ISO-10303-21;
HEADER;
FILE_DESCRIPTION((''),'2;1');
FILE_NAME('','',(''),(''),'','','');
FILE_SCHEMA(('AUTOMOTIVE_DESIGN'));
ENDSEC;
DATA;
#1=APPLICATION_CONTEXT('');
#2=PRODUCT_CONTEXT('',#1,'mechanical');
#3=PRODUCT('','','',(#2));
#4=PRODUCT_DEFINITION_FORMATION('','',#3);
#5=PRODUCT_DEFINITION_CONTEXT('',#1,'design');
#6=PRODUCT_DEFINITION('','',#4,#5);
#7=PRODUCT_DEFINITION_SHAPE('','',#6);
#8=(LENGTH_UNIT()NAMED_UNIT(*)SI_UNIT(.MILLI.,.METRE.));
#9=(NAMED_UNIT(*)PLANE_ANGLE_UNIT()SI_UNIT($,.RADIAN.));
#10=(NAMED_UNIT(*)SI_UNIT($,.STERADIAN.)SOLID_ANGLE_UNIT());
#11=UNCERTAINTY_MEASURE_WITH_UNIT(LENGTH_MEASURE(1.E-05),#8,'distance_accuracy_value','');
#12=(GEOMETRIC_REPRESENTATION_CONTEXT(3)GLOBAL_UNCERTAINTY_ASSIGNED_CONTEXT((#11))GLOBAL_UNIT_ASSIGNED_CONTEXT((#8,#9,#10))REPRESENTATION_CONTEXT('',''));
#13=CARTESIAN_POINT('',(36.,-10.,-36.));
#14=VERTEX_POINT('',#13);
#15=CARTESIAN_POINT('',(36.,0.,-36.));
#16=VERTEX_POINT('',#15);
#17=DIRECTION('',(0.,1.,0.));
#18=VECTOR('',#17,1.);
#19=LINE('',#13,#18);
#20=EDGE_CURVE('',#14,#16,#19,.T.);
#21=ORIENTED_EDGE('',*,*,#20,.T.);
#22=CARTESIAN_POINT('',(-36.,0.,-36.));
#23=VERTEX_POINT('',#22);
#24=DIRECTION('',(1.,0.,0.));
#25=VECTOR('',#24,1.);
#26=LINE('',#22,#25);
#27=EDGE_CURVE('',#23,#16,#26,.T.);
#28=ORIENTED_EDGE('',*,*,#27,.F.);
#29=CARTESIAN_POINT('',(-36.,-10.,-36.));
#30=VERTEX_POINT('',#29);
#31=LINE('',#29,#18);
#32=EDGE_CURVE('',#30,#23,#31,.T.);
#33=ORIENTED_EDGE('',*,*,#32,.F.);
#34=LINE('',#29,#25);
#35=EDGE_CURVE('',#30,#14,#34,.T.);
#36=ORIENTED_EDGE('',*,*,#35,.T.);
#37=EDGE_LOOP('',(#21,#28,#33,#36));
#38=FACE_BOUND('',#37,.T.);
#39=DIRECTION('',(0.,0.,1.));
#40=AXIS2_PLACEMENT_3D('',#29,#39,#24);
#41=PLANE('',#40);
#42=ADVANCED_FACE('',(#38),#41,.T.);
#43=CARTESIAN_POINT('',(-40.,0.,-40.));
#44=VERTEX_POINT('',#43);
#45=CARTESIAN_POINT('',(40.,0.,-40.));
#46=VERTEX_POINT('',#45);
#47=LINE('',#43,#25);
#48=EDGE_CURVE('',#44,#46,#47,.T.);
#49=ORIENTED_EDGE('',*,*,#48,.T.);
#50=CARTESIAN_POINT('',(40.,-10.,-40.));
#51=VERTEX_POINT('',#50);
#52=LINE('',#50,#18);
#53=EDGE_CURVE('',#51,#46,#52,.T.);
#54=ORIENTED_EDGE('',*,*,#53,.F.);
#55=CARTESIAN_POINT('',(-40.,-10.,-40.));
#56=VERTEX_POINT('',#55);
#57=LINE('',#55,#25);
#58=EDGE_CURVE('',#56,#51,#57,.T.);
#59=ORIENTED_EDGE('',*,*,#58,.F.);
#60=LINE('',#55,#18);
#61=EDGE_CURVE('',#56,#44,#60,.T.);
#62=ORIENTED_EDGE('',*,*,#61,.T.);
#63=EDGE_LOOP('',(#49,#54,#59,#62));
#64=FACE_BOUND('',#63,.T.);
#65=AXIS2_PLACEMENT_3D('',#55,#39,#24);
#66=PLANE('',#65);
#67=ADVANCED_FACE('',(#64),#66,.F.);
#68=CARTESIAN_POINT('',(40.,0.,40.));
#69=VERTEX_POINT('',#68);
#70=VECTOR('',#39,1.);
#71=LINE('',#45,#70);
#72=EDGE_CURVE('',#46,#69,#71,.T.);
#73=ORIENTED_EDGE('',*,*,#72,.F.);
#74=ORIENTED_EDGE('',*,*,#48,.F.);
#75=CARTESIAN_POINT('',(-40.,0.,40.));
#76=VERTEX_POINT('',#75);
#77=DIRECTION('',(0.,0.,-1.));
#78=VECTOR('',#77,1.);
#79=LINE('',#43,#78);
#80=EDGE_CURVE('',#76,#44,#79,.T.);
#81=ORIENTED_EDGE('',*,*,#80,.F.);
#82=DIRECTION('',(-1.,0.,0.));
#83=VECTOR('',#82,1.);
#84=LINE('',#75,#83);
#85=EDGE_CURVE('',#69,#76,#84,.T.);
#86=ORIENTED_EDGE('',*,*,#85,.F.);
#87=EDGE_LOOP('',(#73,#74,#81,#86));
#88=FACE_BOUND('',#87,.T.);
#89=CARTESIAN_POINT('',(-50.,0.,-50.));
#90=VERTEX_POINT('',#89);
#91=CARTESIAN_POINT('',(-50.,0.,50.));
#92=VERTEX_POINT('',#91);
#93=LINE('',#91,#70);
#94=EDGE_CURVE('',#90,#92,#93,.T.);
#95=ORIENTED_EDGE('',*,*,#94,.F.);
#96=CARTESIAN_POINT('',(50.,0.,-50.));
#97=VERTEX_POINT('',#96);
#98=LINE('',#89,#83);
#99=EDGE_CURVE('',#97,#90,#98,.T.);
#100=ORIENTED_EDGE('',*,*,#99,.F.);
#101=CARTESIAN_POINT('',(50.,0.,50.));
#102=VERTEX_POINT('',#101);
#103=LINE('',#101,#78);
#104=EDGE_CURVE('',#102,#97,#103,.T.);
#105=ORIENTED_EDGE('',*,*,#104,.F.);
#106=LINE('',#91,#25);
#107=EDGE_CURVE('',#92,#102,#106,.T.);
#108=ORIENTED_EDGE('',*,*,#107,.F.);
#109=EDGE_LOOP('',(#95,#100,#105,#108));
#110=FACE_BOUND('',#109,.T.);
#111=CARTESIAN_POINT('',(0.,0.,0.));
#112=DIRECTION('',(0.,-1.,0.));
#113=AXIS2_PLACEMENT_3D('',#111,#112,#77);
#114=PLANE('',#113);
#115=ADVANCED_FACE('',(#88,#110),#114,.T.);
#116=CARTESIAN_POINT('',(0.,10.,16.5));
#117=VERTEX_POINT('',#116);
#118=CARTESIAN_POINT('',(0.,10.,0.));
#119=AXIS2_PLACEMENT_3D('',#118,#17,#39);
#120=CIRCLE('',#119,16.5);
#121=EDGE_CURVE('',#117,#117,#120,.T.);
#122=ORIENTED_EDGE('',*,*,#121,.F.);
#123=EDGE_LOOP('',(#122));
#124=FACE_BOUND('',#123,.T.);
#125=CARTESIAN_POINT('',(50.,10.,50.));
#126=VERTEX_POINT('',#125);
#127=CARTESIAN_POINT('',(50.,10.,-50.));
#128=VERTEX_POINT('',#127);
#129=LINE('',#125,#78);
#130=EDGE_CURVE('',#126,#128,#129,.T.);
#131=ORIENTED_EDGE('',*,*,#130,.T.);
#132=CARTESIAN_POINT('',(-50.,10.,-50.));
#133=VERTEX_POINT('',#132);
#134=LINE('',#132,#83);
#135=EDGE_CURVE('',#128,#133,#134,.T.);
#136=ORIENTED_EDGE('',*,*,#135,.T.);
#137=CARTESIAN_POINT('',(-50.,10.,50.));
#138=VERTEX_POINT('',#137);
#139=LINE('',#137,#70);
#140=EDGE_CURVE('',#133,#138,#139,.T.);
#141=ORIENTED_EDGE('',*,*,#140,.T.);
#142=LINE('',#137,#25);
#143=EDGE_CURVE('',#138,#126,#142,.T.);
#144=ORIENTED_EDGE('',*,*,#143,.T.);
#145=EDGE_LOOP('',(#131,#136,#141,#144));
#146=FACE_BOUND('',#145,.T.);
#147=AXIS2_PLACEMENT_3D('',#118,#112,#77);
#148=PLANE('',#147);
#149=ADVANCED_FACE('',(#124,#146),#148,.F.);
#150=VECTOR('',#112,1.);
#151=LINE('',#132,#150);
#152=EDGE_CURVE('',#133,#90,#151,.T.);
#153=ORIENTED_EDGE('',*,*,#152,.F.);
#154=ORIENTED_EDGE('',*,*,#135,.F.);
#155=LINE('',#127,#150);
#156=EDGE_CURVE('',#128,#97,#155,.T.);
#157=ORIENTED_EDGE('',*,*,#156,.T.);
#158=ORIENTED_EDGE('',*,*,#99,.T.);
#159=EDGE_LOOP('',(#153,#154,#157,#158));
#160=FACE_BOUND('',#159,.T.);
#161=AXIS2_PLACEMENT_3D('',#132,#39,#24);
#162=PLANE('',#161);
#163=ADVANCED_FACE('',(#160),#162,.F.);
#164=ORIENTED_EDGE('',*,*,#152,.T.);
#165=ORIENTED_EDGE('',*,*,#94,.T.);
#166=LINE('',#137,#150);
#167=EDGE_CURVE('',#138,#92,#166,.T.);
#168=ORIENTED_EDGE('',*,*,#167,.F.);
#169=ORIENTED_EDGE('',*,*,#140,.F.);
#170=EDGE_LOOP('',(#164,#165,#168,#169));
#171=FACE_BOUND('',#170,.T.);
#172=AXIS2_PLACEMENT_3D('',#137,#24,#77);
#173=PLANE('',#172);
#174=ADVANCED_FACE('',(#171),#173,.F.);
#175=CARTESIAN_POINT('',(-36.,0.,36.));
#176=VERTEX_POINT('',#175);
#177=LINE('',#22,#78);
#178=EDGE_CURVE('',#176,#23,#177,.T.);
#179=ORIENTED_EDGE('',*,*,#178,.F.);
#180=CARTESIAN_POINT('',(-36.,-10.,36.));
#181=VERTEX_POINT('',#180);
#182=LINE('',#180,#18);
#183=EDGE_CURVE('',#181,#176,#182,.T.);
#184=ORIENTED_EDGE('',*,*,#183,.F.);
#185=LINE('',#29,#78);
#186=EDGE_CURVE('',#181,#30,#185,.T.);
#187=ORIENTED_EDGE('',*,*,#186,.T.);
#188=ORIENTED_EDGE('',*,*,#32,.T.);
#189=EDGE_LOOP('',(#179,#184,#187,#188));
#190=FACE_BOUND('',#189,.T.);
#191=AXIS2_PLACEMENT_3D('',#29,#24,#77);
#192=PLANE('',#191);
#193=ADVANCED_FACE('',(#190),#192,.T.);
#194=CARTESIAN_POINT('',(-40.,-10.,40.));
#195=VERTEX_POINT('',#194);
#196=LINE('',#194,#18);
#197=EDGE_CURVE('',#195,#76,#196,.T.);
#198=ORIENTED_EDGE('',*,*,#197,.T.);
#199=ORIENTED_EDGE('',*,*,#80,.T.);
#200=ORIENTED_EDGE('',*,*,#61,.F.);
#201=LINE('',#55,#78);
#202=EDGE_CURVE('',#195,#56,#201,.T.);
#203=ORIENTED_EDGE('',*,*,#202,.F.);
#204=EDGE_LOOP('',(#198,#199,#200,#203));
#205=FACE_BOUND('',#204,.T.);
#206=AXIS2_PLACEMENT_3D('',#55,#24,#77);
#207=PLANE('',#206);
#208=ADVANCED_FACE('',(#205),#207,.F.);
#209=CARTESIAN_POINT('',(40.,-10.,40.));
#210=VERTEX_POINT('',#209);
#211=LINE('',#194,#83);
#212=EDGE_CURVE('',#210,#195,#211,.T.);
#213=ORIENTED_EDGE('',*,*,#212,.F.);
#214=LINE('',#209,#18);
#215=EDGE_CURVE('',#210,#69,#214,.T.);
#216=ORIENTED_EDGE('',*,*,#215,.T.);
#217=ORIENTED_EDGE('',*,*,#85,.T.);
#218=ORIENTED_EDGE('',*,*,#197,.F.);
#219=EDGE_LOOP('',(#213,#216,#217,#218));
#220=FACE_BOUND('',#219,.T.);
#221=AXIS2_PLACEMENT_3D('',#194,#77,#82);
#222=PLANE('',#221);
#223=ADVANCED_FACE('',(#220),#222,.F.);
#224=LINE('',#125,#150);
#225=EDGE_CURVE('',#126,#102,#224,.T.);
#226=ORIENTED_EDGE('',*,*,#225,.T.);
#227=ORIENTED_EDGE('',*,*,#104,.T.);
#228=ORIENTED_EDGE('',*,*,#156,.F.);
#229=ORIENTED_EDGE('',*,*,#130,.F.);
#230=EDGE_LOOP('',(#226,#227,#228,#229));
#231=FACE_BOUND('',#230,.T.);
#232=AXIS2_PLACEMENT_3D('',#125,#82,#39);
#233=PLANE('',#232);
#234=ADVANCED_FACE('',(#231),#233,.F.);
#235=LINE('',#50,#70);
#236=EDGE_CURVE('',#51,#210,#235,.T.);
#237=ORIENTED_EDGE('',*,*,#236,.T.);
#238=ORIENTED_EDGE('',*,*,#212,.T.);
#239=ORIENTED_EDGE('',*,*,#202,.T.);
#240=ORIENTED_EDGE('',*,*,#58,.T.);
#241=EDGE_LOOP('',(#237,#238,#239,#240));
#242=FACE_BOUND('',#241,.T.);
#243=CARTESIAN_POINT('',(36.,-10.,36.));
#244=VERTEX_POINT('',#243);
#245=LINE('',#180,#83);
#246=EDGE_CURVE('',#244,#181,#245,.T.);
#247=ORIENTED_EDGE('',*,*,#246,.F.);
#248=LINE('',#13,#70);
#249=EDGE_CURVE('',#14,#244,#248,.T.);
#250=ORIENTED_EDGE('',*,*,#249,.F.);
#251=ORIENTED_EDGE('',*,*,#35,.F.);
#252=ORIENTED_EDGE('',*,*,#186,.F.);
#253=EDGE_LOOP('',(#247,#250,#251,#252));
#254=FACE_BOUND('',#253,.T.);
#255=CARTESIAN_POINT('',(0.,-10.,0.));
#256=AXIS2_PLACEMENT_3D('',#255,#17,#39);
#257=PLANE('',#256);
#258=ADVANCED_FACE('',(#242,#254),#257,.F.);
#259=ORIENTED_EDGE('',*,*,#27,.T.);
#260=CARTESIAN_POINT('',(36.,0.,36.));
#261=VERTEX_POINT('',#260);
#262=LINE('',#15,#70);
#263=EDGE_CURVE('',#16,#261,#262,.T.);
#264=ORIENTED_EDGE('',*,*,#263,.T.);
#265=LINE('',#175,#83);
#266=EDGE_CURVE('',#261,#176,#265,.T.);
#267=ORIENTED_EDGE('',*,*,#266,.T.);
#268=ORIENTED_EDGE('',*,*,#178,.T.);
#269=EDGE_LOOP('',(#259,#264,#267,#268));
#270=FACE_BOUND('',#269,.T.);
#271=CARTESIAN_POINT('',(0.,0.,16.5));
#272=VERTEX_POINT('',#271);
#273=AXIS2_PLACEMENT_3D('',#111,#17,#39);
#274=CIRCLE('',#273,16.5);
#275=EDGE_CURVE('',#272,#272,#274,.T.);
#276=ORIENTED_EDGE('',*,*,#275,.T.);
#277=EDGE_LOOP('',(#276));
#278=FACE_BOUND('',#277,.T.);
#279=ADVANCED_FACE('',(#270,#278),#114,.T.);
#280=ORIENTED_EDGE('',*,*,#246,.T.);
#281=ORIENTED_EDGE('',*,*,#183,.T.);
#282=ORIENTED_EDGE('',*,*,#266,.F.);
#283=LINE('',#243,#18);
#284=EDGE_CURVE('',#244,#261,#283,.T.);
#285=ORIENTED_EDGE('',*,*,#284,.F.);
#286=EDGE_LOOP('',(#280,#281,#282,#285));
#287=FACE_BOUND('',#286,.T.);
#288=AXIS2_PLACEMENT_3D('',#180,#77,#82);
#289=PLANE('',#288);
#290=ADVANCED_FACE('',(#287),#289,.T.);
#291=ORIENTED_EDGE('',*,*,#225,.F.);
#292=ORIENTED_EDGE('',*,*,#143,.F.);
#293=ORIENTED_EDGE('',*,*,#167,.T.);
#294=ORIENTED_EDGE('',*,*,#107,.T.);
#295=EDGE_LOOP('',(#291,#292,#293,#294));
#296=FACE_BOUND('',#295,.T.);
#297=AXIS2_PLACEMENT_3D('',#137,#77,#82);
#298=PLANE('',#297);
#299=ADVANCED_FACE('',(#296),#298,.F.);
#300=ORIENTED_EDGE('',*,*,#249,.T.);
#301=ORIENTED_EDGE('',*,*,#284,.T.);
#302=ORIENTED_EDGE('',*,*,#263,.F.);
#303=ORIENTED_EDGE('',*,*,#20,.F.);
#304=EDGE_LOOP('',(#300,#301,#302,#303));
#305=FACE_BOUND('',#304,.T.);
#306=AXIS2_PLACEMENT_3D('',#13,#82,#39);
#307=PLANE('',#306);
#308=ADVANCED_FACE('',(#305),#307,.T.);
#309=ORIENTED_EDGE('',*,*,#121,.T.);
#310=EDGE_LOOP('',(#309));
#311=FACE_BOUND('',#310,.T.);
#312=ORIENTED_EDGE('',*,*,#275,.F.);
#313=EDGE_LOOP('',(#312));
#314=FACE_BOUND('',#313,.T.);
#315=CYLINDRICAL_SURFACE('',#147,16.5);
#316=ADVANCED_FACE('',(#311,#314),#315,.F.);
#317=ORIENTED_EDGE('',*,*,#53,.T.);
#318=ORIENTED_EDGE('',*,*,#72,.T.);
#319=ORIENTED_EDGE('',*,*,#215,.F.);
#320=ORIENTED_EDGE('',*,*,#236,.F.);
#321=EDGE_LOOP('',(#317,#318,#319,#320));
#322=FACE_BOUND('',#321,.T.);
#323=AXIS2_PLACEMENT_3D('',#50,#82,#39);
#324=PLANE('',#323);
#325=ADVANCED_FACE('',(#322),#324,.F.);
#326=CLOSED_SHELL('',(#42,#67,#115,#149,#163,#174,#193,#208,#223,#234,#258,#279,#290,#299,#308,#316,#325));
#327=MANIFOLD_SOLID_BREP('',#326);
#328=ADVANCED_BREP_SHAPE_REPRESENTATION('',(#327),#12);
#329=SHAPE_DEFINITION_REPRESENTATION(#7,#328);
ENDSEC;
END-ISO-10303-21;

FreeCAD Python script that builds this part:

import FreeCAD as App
import Part
import Sketcher
from FreeCAD import Vector
Q = App.Units.Quantity


def add_polygon(sketch, points):
    """Adds a closed chain of lines whose ends are joined by coincident constraints."""
    first, n = sketch.GeometryCount, len(points)
    for a, b in zip(points, points[1:] + points[:1]):
        sketch.addGeometry(Part.LineSegment(App.Vector(*a, 0), App.Vector(*b, 0)), False)
    for i in range(n):
        sketch.addConstraint(Sketcher.Constraint("Coincident", first + i, 2, first + (i + 1) % n, 1))

doc = App.newDocument("Part")
params = doc.addObject("Spreadsheet::Sheet", "Params")
for row, (alias, value) in enumerate([
    ("sketch1_diameter", "33 mm"),
    ("sketch1_width", "100 mm"),
    ("pad1_length", "10 mm"),
    ("sketch2_width", "80 mm"),
    ("sketch2_width2", "72 mm"),
    ("pad2_length", "10 mm"),
], start=1):
    params.set(f"A{row}", alias)
    params.set(f"B{row}", "=" + value)
    params.setAlias(f"B{row}", alias)

body = doc.addObject("PartDesign::Body", "Body")

sketch1 = doc.addObject("Sketcher::SketchObject", "Sketch")
body.addObject(sketch1)
sketch1.AttachmentSupport = (doc.XZ_Plane, [""])
sketch1.MapMode = "FlatFace"
add_polygon(sketch1, [(-50, -50), (-50, 50), (50, 50), (50, -50)])
sketch1.addGeometry(Part.Circle(Vector(0, 0, 0), Vector(0, 0, 1), 16), False)
sketch1.addConstraint([
    Sketcher.Constraint("Vertical", 0),
    Sketcher.Constraint("Horizontal", 1),
    Sketcher.Constraint("Vertical", 2),
    Sketcher.Constraint("Horizontal", 3),
    Sketcher.Constraint("Coincident", 4, 3, -1, 1),
    Sketcher.Constraint("Symmetric", 0, 2, 2, 2, -1, 1),
    Sketcher.Constraint("Equal", 3, 0),
    Sketcher.Constraint("Diameter", 4, Q("33 mm")),
    Sketcher.Constraint("DistanceX", 1, 1, 1, 2, Q("100 mm")),
])
sketch1.setExpression("Constraints[11]", "Params.sketch1_diameter")
sketch1.setExpression("Constraints[12]", "Params.sketch1_width")
pad1 = doc.addObject("PartDesign::Pad", "Pad")
body.addObject(pad1)
pad1.Profile = sketch1
pad1.setExpression("Length", "Params.pad1_length")
pad1.Reversed = True

sketch2 = doc.addObject("Sketcher::SketchObject", "Sketch001")
body.addObject(sketch2)
sketch2.AttachmentSupport = (doc.XZ_Plane, [""])
sketch2.MapMode = "FlatFace"
add_polygon(sketch2, [(-40, 40), (-40, -40), (40, -40), (40, 40)])
add_polygon(sketch2, [(36, -36), (-36, -36), (-36, 36), (36, 36)])
sketch2.addConstraint([
    Sketcher.Constraint("Vertical", 0),
    Sketcher.Constraint("Horizontal", 1),
    Sketcher.Constraint("Vertical", 2),
    Sketcher.Constraint("Horizontal", 3),
    Sketcher.Constraint("Horizontal", 4),
    Sketcher.Constraint("Vertical", 5),
    Sketcher.Constraint("Horizontal", 6),
    Sketcher.Constraint("Vertical", 7),
    Sketcher.Constraint("Symmetric", 0, 2, 2, 2, -1, 1),
    Sketcher.Constraint("Symmetric", 4, 2, 6, 2, -1, 1),
    Sketcher.Constraint("Equal", 3, 0),
    Sketcher.Constraint("Equal", 6, 5),
    Sketcher.Constraint("DistanceX", 1, 1, 1, 2, Q("80 mm")),
    Sketcher.Constraint("DistanceX", 4, 2, 4, 1, Q("72 mm")),
])
sketch2.setExpression("Constraints[20]", "Params.sketch2_width")
sketch2.setExpression("Constraints[21]", "Params.sketch2_width2")
pad2 = doc.addObject("PartDesign::Pad", "Pad001")
body.addObject(pad2)
pad2.Profile = sketch2
pad2.setExpression("Length", "Params.pad2_length")

doc.recompute()
